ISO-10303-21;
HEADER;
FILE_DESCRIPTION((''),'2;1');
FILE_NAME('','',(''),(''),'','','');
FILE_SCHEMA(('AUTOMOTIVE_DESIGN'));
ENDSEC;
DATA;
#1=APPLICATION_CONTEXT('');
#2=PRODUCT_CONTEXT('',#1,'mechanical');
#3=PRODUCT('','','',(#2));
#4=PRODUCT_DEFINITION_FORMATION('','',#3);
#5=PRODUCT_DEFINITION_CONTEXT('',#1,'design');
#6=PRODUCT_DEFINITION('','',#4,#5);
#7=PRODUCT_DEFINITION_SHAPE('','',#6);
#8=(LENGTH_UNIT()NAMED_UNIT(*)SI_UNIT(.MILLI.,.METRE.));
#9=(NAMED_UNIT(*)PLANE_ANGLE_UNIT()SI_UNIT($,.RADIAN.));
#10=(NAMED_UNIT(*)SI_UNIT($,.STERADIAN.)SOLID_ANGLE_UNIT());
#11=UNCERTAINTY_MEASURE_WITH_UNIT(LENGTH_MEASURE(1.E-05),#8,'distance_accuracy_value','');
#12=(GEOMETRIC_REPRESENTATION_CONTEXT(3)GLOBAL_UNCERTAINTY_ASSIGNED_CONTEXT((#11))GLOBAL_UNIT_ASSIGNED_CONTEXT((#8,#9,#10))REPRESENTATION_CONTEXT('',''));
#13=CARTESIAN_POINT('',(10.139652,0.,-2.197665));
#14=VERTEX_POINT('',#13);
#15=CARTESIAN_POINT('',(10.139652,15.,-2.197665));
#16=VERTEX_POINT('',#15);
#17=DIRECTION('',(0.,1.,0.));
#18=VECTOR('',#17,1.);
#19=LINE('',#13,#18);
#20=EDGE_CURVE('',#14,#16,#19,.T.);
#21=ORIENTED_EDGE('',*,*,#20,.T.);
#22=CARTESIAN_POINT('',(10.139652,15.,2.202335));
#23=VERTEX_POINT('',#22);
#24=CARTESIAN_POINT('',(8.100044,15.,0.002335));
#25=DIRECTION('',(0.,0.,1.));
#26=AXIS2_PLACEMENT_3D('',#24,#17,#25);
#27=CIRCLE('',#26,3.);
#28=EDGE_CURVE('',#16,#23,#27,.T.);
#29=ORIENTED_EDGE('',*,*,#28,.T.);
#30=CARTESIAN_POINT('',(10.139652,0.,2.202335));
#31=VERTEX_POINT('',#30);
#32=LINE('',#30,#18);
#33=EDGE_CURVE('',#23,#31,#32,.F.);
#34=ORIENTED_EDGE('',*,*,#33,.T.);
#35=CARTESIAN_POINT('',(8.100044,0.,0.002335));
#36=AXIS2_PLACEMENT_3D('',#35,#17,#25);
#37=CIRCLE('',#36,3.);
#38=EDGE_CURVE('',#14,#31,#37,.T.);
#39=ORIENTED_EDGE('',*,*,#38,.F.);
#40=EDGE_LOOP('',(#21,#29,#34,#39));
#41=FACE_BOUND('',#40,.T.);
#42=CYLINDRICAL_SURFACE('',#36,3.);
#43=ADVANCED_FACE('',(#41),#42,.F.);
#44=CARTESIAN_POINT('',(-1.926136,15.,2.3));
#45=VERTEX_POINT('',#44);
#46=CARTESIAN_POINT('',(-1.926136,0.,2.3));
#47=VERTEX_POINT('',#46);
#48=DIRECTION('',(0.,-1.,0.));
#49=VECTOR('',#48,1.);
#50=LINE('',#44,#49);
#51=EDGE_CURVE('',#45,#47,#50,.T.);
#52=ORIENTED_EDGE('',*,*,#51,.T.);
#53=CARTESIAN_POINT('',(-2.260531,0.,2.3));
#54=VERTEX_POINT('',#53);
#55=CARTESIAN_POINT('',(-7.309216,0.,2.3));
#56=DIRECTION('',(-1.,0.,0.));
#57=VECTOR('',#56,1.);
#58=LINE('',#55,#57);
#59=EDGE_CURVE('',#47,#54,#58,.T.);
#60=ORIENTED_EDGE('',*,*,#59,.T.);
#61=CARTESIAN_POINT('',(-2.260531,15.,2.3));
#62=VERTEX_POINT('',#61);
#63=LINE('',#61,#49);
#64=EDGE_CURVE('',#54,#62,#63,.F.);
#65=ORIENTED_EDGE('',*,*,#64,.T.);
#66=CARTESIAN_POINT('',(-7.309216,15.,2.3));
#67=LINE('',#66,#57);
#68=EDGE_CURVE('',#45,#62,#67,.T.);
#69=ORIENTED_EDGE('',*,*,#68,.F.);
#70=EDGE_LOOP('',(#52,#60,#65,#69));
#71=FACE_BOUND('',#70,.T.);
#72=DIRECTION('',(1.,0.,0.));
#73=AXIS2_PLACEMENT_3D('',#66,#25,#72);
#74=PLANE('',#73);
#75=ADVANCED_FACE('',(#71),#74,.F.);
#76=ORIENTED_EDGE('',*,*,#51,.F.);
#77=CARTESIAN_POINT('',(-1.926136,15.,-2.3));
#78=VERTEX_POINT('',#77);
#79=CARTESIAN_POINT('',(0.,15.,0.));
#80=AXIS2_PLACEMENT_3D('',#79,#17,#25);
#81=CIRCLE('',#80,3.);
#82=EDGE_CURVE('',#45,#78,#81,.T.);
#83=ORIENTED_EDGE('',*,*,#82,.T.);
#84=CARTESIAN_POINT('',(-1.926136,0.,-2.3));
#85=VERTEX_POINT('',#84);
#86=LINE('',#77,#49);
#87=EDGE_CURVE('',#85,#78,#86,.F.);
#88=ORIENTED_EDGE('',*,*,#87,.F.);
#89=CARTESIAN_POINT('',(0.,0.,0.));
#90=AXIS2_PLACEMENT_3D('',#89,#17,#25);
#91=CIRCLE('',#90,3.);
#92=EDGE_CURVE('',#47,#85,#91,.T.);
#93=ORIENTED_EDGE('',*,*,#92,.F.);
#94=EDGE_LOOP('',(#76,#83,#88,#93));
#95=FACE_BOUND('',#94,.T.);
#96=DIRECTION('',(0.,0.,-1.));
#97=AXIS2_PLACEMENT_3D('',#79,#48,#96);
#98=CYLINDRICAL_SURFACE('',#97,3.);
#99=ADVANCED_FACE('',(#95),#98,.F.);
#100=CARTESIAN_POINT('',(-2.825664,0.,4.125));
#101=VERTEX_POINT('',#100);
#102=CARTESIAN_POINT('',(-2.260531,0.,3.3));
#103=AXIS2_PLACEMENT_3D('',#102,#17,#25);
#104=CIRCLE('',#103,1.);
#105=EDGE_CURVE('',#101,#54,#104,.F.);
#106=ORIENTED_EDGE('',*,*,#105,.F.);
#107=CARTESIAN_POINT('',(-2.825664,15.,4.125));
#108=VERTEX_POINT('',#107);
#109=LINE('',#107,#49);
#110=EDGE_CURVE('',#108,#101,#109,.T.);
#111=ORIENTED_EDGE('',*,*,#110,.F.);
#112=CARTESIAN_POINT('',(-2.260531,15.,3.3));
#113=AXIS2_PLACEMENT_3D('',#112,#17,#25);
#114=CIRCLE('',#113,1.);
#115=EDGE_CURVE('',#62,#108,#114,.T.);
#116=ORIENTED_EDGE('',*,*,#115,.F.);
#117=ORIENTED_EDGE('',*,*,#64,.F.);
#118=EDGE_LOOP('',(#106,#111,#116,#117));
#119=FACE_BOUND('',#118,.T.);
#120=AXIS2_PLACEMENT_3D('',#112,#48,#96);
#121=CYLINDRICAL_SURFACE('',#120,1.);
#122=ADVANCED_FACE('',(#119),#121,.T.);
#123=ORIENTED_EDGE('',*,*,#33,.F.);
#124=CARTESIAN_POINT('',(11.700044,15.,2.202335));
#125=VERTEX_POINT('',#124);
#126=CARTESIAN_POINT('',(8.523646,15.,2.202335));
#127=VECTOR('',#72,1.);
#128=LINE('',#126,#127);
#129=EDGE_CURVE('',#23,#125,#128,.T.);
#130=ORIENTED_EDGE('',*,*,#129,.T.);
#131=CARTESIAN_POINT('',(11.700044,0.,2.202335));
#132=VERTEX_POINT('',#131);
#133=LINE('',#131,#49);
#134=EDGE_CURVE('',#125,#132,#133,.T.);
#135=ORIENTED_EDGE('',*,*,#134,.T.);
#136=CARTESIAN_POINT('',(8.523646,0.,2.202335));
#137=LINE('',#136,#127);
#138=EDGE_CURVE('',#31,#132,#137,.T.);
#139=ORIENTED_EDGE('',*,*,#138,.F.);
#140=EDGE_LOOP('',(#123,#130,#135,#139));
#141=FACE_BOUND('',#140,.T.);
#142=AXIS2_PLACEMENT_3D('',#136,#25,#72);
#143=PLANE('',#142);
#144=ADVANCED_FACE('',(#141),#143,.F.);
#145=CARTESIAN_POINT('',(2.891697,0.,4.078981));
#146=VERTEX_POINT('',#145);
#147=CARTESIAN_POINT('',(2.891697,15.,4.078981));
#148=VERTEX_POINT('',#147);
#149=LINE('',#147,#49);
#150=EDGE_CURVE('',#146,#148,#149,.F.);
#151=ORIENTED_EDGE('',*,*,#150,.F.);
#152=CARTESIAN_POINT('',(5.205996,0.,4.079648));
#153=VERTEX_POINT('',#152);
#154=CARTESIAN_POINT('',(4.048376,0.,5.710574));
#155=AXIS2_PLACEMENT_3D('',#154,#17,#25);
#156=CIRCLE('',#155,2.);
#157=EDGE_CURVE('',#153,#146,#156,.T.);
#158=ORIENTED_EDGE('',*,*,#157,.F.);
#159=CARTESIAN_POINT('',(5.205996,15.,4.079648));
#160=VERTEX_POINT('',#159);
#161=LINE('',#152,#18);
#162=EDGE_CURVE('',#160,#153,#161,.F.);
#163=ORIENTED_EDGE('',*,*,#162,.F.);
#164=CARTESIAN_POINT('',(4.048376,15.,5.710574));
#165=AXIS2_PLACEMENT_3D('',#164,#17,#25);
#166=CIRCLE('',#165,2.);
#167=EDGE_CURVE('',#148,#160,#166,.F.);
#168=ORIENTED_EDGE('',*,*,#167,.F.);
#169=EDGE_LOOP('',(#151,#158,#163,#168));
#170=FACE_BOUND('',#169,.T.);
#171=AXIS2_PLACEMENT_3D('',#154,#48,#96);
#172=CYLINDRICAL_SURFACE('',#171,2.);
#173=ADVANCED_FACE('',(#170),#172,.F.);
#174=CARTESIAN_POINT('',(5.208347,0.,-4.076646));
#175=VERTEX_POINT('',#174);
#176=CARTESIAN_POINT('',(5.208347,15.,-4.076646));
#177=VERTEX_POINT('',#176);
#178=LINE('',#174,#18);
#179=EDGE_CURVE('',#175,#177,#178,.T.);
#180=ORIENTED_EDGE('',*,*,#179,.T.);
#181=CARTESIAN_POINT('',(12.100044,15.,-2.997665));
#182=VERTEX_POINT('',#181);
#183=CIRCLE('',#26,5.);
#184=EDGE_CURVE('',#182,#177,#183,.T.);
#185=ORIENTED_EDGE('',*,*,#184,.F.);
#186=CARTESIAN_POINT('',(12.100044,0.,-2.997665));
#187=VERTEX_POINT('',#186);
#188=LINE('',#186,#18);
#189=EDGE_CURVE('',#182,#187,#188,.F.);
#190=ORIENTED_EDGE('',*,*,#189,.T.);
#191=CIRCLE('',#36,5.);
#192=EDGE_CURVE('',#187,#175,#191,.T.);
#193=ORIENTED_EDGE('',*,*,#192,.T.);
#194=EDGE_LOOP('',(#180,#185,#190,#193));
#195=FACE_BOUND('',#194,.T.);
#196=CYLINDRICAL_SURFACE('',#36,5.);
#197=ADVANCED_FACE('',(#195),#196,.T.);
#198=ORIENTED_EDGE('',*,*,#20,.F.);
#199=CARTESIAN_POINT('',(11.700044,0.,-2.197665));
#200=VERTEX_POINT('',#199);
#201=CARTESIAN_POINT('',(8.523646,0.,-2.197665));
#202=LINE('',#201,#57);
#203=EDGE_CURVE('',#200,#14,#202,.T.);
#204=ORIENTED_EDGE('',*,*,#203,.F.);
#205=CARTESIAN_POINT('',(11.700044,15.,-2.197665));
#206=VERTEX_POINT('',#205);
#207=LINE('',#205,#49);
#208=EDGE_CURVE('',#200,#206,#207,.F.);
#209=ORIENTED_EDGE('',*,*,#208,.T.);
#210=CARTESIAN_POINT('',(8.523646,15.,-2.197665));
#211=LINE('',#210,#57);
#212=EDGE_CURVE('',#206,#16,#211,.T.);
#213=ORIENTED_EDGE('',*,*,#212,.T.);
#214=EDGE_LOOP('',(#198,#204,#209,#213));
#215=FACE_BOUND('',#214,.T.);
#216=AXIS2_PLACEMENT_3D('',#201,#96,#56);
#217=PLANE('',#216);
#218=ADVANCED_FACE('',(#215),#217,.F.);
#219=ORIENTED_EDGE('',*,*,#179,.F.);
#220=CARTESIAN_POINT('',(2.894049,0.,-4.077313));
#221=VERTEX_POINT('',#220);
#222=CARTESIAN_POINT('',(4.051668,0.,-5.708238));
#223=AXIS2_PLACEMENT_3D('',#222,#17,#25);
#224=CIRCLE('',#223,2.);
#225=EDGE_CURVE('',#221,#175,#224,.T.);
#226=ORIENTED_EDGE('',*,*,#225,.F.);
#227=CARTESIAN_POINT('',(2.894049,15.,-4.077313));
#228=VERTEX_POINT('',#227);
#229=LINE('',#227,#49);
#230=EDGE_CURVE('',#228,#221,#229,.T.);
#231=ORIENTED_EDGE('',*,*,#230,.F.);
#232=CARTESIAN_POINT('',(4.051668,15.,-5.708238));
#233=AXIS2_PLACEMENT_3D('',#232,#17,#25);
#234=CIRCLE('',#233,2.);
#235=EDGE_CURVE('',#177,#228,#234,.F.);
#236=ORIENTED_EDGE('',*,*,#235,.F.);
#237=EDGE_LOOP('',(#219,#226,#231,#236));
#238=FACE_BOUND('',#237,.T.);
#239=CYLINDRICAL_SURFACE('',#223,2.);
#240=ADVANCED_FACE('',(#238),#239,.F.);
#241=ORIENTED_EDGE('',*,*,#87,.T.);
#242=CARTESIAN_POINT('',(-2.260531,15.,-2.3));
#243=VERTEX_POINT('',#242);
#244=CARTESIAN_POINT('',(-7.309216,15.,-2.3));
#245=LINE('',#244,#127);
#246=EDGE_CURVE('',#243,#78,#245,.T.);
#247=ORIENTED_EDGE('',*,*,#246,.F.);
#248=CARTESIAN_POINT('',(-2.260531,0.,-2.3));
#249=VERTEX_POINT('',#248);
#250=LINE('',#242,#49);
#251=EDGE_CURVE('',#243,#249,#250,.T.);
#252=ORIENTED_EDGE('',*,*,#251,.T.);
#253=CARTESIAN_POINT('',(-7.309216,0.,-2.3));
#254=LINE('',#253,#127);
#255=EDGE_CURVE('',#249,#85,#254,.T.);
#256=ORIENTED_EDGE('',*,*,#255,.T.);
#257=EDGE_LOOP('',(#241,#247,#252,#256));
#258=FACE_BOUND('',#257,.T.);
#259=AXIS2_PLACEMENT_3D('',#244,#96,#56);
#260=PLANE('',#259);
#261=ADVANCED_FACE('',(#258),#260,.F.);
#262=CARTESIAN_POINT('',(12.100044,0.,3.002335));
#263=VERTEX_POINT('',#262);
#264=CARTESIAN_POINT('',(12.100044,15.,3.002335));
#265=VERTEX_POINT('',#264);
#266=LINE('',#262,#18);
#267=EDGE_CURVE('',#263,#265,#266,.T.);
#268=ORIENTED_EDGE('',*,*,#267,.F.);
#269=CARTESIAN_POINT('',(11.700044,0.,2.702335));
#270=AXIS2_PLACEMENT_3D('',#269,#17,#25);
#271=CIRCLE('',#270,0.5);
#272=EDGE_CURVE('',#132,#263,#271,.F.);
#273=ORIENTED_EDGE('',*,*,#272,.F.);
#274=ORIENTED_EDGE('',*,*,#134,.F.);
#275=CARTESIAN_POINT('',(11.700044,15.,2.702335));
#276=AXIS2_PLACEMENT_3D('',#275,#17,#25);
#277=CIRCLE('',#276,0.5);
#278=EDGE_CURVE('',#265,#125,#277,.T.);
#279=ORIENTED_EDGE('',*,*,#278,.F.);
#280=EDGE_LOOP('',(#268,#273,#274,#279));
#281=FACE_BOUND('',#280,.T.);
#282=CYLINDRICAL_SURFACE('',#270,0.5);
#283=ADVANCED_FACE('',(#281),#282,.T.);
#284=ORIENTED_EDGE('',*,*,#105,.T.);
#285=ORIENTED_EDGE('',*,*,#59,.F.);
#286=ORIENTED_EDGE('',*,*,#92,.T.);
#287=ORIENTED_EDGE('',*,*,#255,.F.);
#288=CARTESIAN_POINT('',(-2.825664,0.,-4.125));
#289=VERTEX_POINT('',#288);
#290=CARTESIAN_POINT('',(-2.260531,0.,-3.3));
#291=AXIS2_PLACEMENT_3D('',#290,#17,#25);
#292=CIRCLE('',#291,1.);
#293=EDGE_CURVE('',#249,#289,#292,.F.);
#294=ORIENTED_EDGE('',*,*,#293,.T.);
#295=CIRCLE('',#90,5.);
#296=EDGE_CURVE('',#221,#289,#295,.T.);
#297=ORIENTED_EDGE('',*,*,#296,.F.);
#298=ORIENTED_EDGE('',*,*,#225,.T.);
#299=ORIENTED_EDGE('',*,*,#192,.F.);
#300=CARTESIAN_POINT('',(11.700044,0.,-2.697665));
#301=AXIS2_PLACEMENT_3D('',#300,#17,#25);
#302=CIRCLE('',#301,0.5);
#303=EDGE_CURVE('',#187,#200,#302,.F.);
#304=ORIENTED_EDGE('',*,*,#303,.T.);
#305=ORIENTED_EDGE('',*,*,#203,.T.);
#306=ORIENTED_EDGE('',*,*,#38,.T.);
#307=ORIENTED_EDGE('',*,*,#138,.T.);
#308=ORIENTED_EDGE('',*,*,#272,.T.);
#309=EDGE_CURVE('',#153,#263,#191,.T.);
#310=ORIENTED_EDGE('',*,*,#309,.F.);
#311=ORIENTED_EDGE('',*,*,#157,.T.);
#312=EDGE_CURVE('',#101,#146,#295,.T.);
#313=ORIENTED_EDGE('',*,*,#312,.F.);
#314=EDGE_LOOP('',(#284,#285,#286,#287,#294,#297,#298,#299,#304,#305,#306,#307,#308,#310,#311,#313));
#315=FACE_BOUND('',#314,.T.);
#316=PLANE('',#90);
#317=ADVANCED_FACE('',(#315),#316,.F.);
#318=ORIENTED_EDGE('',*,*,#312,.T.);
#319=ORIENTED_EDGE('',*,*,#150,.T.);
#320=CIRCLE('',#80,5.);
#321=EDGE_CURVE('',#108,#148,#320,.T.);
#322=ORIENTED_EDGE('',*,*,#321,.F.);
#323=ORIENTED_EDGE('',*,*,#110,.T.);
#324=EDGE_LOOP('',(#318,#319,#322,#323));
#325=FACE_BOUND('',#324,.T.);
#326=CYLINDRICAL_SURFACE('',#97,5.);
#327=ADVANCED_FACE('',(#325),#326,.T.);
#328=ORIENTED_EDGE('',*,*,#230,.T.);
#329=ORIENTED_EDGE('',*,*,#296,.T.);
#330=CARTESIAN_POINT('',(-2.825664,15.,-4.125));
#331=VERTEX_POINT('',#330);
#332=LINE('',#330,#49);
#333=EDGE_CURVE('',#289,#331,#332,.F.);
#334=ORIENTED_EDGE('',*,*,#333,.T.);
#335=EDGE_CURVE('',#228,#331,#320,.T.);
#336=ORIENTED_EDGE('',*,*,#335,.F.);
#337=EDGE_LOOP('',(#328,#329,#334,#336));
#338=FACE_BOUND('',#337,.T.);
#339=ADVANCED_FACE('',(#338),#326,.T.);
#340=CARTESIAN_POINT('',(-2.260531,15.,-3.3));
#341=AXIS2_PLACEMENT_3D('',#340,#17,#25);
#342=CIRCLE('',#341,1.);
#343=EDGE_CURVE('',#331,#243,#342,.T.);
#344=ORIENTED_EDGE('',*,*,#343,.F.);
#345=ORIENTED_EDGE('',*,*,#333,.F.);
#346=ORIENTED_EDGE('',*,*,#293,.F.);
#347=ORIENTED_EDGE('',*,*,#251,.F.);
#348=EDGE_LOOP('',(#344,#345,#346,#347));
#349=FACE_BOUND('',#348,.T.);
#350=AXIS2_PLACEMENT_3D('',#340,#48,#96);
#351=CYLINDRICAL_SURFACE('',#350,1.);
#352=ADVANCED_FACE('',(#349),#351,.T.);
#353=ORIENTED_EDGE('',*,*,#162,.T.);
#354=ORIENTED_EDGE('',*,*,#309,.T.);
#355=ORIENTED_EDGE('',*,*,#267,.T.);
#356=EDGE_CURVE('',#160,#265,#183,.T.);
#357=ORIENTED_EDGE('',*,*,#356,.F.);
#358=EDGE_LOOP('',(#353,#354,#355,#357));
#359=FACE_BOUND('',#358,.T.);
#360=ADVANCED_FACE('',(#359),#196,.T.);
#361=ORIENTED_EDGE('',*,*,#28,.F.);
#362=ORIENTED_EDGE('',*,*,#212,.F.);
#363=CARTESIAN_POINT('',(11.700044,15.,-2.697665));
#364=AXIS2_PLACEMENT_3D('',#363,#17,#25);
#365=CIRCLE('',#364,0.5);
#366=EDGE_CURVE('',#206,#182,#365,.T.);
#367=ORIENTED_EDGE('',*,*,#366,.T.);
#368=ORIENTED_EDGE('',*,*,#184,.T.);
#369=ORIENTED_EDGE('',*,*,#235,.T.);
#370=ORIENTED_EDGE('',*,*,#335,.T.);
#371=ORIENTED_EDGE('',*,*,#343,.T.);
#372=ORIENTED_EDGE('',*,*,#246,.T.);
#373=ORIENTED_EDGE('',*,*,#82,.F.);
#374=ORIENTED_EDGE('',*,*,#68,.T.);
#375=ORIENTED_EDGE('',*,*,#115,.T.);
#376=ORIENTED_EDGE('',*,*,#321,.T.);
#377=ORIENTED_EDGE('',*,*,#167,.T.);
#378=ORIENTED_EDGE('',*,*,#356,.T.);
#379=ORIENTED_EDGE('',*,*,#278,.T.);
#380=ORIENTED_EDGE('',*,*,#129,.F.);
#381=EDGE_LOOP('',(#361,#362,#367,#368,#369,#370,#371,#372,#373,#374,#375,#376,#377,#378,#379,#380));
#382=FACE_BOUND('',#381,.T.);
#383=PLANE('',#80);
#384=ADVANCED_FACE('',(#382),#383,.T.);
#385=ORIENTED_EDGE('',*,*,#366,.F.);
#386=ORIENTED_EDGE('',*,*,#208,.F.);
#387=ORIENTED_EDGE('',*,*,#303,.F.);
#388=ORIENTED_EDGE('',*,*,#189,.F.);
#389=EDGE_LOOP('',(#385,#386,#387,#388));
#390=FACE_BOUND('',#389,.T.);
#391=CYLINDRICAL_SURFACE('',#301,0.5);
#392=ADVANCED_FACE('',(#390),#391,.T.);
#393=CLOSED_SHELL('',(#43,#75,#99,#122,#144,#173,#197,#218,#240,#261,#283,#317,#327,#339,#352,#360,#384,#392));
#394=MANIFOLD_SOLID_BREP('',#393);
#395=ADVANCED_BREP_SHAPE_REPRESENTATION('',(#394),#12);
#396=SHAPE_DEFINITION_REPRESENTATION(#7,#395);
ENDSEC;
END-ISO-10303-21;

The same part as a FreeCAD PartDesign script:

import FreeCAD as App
import Part
import Sketcher
Q = App.Units.Quantity


def edges_at(feature, points):
    """Names of the edges that pass closest to the given points."""
    edges = feature.Shape.Edges
    near = lambda p: min(range(len(edges)), key=lambda i: edges[i].distToShape(Part.Vertex(*p))[0])
    return sorted({f"Edge{near(p) + 1}" for p in points})

doc = App.newDocument("Part")
body = doc.addObject("PartDesign::Body", "Body")

sketch1 = body.newObject("Sketcher::SketchObject", "Sketch")
sketch1.AttachmentSupport = (doc.getObject("XZ_Plane"), [""])
sketch1.MapMode = "FlatFace"
sketch1.addGeometry([
    Part.Circle(App.Vector(0, 0, 0), App.Vector(0, 0, 1), 5),
    Part.Circle(App.Vector(0, 0, 0), App.Vector(0, 0, 1), 3),
], False)
sketch1.addConstraint([
    Sketcher.Constraint("Coincident", 0, 3, -1, 1),
    Sketcher.Constraint("Coincident", 1, 3, -1, 1),
    Sketcher.Constraint("Diameter", 0, Q("10 mm")),
    Sketcher.Constraint("Diameter", 1, Q("6 mm")),
])
pad1 = body.newObject("PartDesign::Pad", "Pad")
pad1.Profile = sketch1
pad1.Length = 15
pad1.Reversed = True

sketch2 = body.newObject("Sketcher::SketchObject", "Sketch001")
sketch2.AttachmentSupport = (doc.getObject("XZ_Plane"), [""])
sketch2.MapMode = "FlatFace"
sketch2.AttachmentOffset = App.Placement(App.Vector(0, 0, -15), App.Rotation())
sketch2.addGeometry([
    Part.Circle(App.Vector(8.100044, 0.002335, 0), App.Vector(0, 0, 1), 5),
    Part.Circle(App.Vector(8.100044, 0.002335, 0), App.Vector(0, 0, 1), 3),
], False)
sketch2.addConstraint([
    Sketcher.Constraint("Coincident", 1, 3, 0, 3),
    Sketcher.Constraint("Diameter", 0, Q("10 mm")),
    Sketcher.Constraint("Diameter", 1, Q("6 mm")),
    Sketcher.Constraint("DistanceX", -1, 1, 0, 3, Q("8.100044 mm")),
    Sketcher.Constraint("DistanceY", -1, 1, 0, 3, Q("0.002335 mm")),
])
pad2 = body.newObject("PartDesign::Pad", "Pad001")
pad2.Profile = sketch2
pad2.Length = 15
doc.recompute()

fillet = body.newObject("PartDesign::Fillet", "Fillet")
fillet.Base = (pad2, edges_at(pad2, [(4.051, 7.5, -2.931), (4.049, 7.5, 2.933)]))
fillet.Radius = 2

sketch3 = body.newObject("Sketcher::SketchObject", "Sketch002")
sketch3.AttachmentSupport = (doc.getObject("XZ_Plane"), [""])
sketch3.MapMode = "FlatFace"
sketch3.addGeometry([
    Part.LineSegment(App.Vector(-7.309216, 2.3, 0), App.Vector(-7.309216, -2.3, 0)),
    Part.LineSegment(App.Vector(-7.309216, -2.3, 0), App.Vector(0, -2.3, 0)),
    Part.LineSegment(App.Vector(0, -2.3, 0), App.Vector(0, 2.3, 0)),
    Part.LineSegment(App.Vector(0, 2.3, 0), App.Vector(-7.309216, 2.3, 0)),
], False)
sketch3.addConstraint([
    Sketcher.Constraint("Coincident", 0, 2, 1, 1),
    Sketcher.Constraint("Coincident", 1, 2, 2, 1),
    Sketcher.Constraint("Coincident", 2, 2, 3, 1),
    Sketcher.Constraint("Coincident", 3, 2, 0, 1),
    Sketcher.Constraint("Vertical", 0),
    Sketcher.Constraint("Horizontal", 1),
    Sketcher.Constraint("Vertical", 2),
    Sketcher.Constraint("Horizontal", 3),
    Sketcher.Constraint("Symmetric", 1, 2, 2, 2, -1, 1),
    Sketcher.Constraint("DistanceY", 0, 2, 0, 1, Q("4.6 mm")),
    Sketcher.Constraint("DistanceX", 1, 1, 1, 2, Q("7.309216 mm")),
])
pocket1 = body.newObject("PartDesign::Pocket", "Pocket")
pocket1.Profile = sketch3
pocket1.Length = 15
doc.recompute()

fillet2 = body.newObject("PartDesign::Fillet", "Fillet001")
fillet2.Base = (pocket1, edges_at(pocket1, [(-4.44, 7.5, 2.3), (-4.44, 7.5, -2.3)]))
fillet2.Radius = 1

sketch4 = body.newObject("Sketcher::SketchObject", "Sketch003")
sketch4.AttachmentSupport = (doc.getObject("XZ_Plane"), [""])
sketch4.MapMode = "FlatFace"
sketch4.AttachmentOffset = App.Placement(App.Vector(0, 0, -15), App.Rotation())
sketch4.addGeometry([
    Part.LineSegment(App.Vector(8.523646, -2.197665, 0), App.Vector(8.523646, 2.202335, 0)),
    Part.LineSegment(App.Vector(8.523646, 2.202335, 0), App.Vector(15.409987, 2.202335, 0)),
    Part.LineSegment(App.Vector(15.409987, 2.202335, 0), App.Vector(15.409987, -2.197665, 0)),
    Part.LineSegment(App.Vector(15.409987, -2.197665, 0), App.Vector(8.523646, -2.197665, 0)),
], False)
sketch4.addConstraint([
    Sketcher.Constraint("Coincident", 0, 2, 1, 1),
    Sketcher.Constraint("Coincident", 1, 2, 2, 1),
    Sketcher.Constraint("Coincident", 2, 2, 3, 1),
    Sketcher.Constraint("Coincident", 3, 2, 0, 1),
    Sketcher.Constraint("Vertical", 0),
    Sketcher.Constraint("Horizontal", 1),
    Sketcher.Constraint("Vertical", 2),
    Sketcher.Constraint("Horizontal", 3),
    Sketcher.Constraint("DistanceY", 0, 1, 0, 2, Q("4.4 mm")),
    Sketcher.Constraint("DistanceX", 1, 1, 1, 2, Q("6.886341 mm")),
    Sketcher.Constraint("DistanceX", -1, 1, 0, 2, Q("8.523646 mm")),
    Sketcher.Constraint("DistanceY", -1, 1, 0, 2, Q("2.202335 mm")),
])
pocket2 = body.newObject("PartDesign::Pocket", "Pocket001")
pocket2.Profile = sketch4
pocket2.Length = 15
pocket2.Reversed = True
doc.recompute()

fillet3 = body.newObject("PartDesign::Fillet", "Fillet002")
fillet3.Base = (pocket2, edges_at(pocket2, [(12.59, 7.5, -2.198), (12.59, 7.5, 2.202)]))
fillet3.Radius = 0.5

doc.recompute()
